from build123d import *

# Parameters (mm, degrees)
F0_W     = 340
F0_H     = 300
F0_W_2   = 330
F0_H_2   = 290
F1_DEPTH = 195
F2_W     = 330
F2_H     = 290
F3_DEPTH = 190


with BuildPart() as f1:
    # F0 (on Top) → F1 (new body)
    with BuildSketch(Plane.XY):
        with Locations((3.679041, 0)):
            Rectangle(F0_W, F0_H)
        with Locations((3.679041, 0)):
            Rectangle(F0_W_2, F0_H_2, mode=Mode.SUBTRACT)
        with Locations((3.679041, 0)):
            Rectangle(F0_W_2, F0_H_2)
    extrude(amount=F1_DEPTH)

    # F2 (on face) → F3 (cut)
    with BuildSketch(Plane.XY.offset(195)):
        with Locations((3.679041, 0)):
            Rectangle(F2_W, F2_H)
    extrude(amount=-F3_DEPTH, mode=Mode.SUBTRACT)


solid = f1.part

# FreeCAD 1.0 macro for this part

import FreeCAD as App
import Part
import Sketcher

V = App.Vector
Q = App.Units.Quantity

doc = App.newDocument("Part")
body = doc.addObject("PartDesign::Body", "Body")

# Sketch on XY plane
sketch1 = body.newObject("Sketcher::SketchObject", "Sketch")
sketch1.AttachmentSupport = (doc.getObject("XY_Plane"), [""])
sketch1.MapMode = "FlatFace"
sketch1.addGeometry(Part.LineSegment(V(-166.320959, 150, 0), V(-166.320959, -150, 0)), False)
sketch1.addGeometry(Part.LineSegment(V(-166.320959, -150, 0), V(173.679041, -150, 0)), False)
sketch1.addGeometry(Part.LineSegment(V(173.679041, -150, 0), V(173.679041, 150, 0)), False)
sketch1.addGeometry(Part.LineSegment(V(173.679041, 150, 0), V(-166.320959, 150, 0)), False)
sketch1.addConstraint(Sketcher.Constraint("Coincident", 0, 2, 1, 1))
sketch1.addConstraint(Sketcher.Constraint("Coincident", 1, 2, 2, 1))
sketch1.addConstraint(Sketcher.Constraint("Coincident", 2, 2, 3, 1))
sketch1.addConstraint(Sketcher.Constraint("Coincident", 3, 2, 0, 1))
sketch1.addConstraint(Sketcher.Constraint("Vertical", 0))
sketch1.addConstraint(Sketcher.Constraint("Horizontal", 1))
sketch1.addConstraint(Sketcher.Constraint("Vertical", 2))
sketch1.addConstraint(Sketcher.Constraint("Horizontal", 3))
sketch1.addConstraint(Sketcher.Constraint("DistanceX", 1, 1, 1, 2, Q("340 mm")))
sketch1.addConstraint(Sketcher.Constraint("DistanceY", 0, 2, 0, 1, Q("300 mm")))
sketch1.addConstraint(Sketcher.Constraint("DistanceY", 0, 2, -1, 1, Q("150 mm")))
sketch1.addConstraint(Sketcher.Constraint("DistanceX", 0, 2, -1, 1, Q("166.320959 mm")))
pad1 = body.newObject("PartDesign::Pad", "Pad")
pad1.Profile = sketch1
pad1.Length = 195

# Sketch on XY plane
sketch2 = body.newObject("Sketcher::SketchObject", "Sketch001")
sketch2.AttachmentSupport = (doc.getObject("XY_Plane"), [""])
sketch2.MapMode = "FlatFace"
sketch2.AttachmentOffset = App.Placement(V(0, 0, 195), App.Rotation())
sketch2.addGeometry(Part.LineSegment(V(-161.320959, 145, 0), V(-161.320959, -145, 0)), False)
sketch2.addGeometry(Part.LineSegment(V(-161.320959, -145, 0), V(168.679041, -145, 0)), False)
sketch2.addGeometry(Part.LineSegment(V(168.679041, -145, 0), V(168.679041, 145, 0)), False)
sketch2.addGeometry(Part.LineSegment(V(168.679041, 145, 0), V(-161.320959, 145, 0)), False)
sketch2.addConstraint(Sketcher.Constraint("Coincident", 0, 2, 1, 1))
sketch2.addConstraint(Sketcher.Constraint("Coincident", 1, 2, 2, 1))
sketch2.addConstraint(Sketcher.Constraint("Coincident", 2, 2, 3, 1))
sketch2.addConstraint(Sketcher.Constraint("Coincident", 3, 2, 0, 1))
sketch2.addConstraint(Sketcher.Constraint("Vertical", 0))
sketch2.addConstraint(Sketcher.Constraint("Horizontal", 1))
sketch2.addConstraint(Sketcher.Constraint("Vertical", 2))
sketch2.addConstraint(Sketcher.Constraint("Horizontal", 3))
sketch2.addConstraint(Sketcher.Constraint("DistanceX", 1, 1, 1, 2, Q("330 mm")))
sketch2.addConstraint(Sketcher.Constraint("DistanceY", 0, 2, 0, 1, Q("290 mm")))
sketch2.addConstraint(Sketcher.Constraint("DistanceY", 0, 2, -1, 1, Q("145 mm")))
sketch2.addConstraint(Sketcher.Constraint("DistanceX", 0, 2, -1, 1, Q("161.320959 mm")))
pocket1 = body.newObject("PartDesign::Pocket", "Pocket")
pocket1.Profile = sketch2
pocket1.Length = 190

doc.recompute()
